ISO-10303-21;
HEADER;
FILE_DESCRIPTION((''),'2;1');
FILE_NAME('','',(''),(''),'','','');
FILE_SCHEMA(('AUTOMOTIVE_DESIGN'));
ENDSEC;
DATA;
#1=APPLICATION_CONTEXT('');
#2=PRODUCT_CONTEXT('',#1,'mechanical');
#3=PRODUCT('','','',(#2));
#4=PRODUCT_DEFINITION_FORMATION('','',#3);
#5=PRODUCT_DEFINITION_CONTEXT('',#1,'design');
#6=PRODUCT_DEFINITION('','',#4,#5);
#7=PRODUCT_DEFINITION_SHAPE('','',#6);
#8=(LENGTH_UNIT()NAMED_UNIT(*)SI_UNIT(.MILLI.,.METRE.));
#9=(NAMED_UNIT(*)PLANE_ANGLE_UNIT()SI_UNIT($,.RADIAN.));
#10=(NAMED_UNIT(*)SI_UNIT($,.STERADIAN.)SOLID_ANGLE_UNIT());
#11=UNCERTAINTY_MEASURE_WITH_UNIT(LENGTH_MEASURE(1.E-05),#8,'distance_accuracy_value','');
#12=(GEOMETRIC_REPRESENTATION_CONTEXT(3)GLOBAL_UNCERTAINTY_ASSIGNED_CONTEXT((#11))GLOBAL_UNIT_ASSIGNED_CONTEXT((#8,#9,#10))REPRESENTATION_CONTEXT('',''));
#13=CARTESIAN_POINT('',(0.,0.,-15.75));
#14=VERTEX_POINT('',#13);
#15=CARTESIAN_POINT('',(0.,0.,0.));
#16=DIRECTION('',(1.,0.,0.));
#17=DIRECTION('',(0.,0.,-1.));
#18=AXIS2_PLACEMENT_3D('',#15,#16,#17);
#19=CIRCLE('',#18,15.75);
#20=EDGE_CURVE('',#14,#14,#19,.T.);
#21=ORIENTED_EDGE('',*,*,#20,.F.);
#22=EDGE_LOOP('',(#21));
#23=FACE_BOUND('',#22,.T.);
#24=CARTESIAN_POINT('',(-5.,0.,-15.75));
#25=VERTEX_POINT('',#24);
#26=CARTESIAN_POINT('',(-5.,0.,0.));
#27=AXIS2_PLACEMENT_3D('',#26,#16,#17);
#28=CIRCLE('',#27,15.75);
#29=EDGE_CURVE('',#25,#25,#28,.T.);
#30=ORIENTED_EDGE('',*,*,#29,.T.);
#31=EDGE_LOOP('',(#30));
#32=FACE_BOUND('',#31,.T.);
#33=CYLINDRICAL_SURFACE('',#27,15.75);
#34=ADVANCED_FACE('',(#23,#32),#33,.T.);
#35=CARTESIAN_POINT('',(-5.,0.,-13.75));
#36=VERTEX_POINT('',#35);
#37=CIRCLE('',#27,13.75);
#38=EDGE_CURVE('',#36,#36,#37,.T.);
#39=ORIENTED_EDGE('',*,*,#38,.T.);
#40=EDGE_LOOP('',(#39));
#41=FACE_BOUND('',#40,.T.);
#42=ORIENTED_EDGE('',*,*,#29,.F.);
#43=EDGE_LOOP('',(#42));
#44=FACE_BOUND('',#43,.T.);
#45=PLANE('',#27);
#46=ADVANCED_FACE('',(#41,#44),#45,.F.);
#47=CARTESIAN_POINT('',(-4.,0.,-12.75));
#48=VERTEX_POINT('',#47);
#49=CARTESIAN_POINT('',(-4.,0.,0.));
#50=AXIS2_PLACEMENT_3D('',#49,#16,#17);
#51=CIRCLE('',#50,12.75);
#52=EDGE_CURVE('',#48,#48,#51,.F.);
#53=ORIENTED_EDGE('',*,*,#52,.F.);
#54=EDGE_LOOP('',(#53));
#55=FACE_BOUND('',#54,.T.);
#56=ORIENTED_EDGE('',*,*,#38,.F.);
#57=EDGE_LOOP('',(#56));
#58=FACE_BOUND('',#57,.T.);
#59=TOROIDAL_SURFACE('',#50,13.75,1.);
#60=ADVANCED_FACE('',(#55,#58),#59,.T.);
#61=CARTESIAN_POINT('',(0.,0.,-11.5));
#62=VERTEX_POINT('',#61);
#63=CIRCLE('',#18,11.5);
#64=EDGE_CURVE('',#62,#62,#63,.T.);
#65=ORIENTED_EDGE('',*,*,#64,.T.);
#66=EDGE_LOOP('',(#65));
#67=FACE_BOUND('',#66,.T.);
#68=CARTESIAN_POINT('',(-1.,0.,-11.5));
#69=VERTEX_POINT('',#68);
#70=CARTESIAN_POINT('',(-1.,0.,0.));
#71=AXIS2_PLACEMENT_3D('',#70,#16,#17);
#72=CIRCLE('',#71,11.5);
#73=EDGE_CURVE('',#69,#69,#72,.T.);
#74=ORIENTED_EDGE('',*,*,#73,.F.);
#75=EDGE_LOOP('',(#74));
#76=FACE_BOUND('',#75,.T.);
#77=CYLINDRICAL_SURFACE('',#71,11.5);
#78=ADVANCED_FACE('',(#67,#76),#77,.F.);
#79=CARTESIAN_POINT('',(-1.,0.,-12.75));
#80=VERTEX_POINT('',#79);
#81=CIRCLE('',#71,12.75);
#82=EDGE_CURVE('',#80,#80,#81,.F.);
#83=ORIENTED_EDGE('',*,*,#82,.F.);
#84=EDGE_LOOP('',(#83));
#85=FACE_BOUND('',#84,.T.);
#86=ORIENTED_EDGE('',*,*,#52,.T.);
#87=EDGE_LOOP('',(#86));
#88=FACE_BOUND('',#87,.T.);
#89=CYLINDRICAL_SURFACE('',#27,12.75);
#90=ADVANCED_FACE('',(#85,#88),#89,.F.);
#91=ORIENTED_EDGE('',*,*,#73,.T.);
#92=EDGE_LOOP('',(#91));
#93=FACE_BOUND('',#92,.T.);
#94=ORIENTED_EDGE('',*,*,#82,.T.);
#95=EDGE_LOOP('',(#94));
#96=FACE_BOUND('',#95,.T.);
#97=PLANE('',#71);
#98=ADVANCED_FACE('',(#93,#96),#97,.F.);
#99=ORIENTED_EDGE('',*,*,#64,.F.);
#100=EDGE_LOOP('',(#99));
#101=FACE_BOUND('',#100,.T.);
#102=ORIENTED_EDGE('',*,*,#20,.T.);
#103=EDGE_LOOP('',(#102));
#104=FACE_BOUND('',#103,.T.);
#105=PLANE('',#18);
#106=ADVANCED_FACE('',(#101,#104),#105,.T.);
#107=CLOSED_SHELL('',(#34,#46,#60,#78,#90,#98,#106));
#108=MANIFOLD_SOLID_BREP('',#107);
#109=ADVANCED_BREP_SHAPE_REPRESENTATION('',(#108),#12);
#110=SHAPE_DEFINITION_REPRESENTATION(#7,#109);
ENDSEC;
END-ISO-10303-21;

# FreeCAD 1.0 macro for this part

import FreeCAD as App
import Part
import Sketcher
Q = App.Units.Quantity


def edges_at(feature, points):
    """Names of the edges that pass closest to the given points."""
    edges = feature.Shape.Edges
    near = lambda p: min(range(len(edges)), key=lambda i: edges[i].distToShape(Part.Vertex(*p))[0])
    return sorted({f"Edge{near(p) + 1}" for p in points})

doc = App.newDocument("Part")
body = doc.addObject("PartDesign::Body", "Body")

# Sketch on YZ plane
sketch1 = body.newObject("Sketcher::SketchObject", "Sketch")
sketch1.AttachmentSupport = (doc.getObject("YZ_Plane"), [""])
sketch1.MapMode = "FlatFace"
sketch1.addGeometry(Part.Circle(App.Vector(0, 0, 0), App.Vector(0, 0, 1), 16), False)
sketch1.addGeometry(Part.Circle(App.Vector(0, 0, 0), App.Vector(0, 0, 1), 13), False)
sketch1.addConstraint(Sketcher.Constraint("Coincident", 0, 3, -1, 1))
sketch1.addConstraint(Sketcher.Constraint("Coincident", 1, 3, -1, 1))
sketch1.addConstraint(Sketcher.Constraint("Diameter", 0, Q("31.5 mm")))
sketch1.addConstraint(Sketcher.Constraint("Diameter", 1, Q("25.5 mm")))
pad1 = body.newObject("PartDesign::Pad", "Pad")
pad1.Profile = sketch1
pad1.Length = 5
pad1.Reversed = True
doc.recompute()

fillet = body.newObject("PartDesign::Fillet", "Fillet")
fillet.Base = (pad1, edges_at(pad1, [(-5, 0, 12.75)]))
fillet.Radius = 1

# Sketch on YZ plane
sketch2 = body.newObject("Sketcher::SketchObject", "Sketch001")
sketch2.AttachmentSupport = (doc.getObject("YZ_Plane"), [""])
sketch2.MapMode = "FlatFace"
sketch2.addGeometry(Part.Circle(App.Vector(0, 0, 0), App.Vector(0, 0, 1), 13), False)
sketch2.addGeometry(Part.Circle(App.Vector(0, 0, 0), App.Vector(0, 0, 1), 12), False)
sketch2.addConstraint(Sketcher.Constraint("Coincident", 0, 3, -1, 1))
sketch2.addConstraint(Sketcher.Constraint("Coincident", 1, 3, -1, 1))
sketch2.addConstraint(Sketcher.Constraint("Diameter", 1, Q("23 mm")))
sketch2.addConstraint(Sketcher.Constraint("Diameter", 0, Q("25.5 mm")))
pad2 = body.newObject("PartDesign::Pad", "Pad001")
pad2.Profile = sketch2
pad2.Length = 1
pad2.Reversed = True

doc.recompute()
